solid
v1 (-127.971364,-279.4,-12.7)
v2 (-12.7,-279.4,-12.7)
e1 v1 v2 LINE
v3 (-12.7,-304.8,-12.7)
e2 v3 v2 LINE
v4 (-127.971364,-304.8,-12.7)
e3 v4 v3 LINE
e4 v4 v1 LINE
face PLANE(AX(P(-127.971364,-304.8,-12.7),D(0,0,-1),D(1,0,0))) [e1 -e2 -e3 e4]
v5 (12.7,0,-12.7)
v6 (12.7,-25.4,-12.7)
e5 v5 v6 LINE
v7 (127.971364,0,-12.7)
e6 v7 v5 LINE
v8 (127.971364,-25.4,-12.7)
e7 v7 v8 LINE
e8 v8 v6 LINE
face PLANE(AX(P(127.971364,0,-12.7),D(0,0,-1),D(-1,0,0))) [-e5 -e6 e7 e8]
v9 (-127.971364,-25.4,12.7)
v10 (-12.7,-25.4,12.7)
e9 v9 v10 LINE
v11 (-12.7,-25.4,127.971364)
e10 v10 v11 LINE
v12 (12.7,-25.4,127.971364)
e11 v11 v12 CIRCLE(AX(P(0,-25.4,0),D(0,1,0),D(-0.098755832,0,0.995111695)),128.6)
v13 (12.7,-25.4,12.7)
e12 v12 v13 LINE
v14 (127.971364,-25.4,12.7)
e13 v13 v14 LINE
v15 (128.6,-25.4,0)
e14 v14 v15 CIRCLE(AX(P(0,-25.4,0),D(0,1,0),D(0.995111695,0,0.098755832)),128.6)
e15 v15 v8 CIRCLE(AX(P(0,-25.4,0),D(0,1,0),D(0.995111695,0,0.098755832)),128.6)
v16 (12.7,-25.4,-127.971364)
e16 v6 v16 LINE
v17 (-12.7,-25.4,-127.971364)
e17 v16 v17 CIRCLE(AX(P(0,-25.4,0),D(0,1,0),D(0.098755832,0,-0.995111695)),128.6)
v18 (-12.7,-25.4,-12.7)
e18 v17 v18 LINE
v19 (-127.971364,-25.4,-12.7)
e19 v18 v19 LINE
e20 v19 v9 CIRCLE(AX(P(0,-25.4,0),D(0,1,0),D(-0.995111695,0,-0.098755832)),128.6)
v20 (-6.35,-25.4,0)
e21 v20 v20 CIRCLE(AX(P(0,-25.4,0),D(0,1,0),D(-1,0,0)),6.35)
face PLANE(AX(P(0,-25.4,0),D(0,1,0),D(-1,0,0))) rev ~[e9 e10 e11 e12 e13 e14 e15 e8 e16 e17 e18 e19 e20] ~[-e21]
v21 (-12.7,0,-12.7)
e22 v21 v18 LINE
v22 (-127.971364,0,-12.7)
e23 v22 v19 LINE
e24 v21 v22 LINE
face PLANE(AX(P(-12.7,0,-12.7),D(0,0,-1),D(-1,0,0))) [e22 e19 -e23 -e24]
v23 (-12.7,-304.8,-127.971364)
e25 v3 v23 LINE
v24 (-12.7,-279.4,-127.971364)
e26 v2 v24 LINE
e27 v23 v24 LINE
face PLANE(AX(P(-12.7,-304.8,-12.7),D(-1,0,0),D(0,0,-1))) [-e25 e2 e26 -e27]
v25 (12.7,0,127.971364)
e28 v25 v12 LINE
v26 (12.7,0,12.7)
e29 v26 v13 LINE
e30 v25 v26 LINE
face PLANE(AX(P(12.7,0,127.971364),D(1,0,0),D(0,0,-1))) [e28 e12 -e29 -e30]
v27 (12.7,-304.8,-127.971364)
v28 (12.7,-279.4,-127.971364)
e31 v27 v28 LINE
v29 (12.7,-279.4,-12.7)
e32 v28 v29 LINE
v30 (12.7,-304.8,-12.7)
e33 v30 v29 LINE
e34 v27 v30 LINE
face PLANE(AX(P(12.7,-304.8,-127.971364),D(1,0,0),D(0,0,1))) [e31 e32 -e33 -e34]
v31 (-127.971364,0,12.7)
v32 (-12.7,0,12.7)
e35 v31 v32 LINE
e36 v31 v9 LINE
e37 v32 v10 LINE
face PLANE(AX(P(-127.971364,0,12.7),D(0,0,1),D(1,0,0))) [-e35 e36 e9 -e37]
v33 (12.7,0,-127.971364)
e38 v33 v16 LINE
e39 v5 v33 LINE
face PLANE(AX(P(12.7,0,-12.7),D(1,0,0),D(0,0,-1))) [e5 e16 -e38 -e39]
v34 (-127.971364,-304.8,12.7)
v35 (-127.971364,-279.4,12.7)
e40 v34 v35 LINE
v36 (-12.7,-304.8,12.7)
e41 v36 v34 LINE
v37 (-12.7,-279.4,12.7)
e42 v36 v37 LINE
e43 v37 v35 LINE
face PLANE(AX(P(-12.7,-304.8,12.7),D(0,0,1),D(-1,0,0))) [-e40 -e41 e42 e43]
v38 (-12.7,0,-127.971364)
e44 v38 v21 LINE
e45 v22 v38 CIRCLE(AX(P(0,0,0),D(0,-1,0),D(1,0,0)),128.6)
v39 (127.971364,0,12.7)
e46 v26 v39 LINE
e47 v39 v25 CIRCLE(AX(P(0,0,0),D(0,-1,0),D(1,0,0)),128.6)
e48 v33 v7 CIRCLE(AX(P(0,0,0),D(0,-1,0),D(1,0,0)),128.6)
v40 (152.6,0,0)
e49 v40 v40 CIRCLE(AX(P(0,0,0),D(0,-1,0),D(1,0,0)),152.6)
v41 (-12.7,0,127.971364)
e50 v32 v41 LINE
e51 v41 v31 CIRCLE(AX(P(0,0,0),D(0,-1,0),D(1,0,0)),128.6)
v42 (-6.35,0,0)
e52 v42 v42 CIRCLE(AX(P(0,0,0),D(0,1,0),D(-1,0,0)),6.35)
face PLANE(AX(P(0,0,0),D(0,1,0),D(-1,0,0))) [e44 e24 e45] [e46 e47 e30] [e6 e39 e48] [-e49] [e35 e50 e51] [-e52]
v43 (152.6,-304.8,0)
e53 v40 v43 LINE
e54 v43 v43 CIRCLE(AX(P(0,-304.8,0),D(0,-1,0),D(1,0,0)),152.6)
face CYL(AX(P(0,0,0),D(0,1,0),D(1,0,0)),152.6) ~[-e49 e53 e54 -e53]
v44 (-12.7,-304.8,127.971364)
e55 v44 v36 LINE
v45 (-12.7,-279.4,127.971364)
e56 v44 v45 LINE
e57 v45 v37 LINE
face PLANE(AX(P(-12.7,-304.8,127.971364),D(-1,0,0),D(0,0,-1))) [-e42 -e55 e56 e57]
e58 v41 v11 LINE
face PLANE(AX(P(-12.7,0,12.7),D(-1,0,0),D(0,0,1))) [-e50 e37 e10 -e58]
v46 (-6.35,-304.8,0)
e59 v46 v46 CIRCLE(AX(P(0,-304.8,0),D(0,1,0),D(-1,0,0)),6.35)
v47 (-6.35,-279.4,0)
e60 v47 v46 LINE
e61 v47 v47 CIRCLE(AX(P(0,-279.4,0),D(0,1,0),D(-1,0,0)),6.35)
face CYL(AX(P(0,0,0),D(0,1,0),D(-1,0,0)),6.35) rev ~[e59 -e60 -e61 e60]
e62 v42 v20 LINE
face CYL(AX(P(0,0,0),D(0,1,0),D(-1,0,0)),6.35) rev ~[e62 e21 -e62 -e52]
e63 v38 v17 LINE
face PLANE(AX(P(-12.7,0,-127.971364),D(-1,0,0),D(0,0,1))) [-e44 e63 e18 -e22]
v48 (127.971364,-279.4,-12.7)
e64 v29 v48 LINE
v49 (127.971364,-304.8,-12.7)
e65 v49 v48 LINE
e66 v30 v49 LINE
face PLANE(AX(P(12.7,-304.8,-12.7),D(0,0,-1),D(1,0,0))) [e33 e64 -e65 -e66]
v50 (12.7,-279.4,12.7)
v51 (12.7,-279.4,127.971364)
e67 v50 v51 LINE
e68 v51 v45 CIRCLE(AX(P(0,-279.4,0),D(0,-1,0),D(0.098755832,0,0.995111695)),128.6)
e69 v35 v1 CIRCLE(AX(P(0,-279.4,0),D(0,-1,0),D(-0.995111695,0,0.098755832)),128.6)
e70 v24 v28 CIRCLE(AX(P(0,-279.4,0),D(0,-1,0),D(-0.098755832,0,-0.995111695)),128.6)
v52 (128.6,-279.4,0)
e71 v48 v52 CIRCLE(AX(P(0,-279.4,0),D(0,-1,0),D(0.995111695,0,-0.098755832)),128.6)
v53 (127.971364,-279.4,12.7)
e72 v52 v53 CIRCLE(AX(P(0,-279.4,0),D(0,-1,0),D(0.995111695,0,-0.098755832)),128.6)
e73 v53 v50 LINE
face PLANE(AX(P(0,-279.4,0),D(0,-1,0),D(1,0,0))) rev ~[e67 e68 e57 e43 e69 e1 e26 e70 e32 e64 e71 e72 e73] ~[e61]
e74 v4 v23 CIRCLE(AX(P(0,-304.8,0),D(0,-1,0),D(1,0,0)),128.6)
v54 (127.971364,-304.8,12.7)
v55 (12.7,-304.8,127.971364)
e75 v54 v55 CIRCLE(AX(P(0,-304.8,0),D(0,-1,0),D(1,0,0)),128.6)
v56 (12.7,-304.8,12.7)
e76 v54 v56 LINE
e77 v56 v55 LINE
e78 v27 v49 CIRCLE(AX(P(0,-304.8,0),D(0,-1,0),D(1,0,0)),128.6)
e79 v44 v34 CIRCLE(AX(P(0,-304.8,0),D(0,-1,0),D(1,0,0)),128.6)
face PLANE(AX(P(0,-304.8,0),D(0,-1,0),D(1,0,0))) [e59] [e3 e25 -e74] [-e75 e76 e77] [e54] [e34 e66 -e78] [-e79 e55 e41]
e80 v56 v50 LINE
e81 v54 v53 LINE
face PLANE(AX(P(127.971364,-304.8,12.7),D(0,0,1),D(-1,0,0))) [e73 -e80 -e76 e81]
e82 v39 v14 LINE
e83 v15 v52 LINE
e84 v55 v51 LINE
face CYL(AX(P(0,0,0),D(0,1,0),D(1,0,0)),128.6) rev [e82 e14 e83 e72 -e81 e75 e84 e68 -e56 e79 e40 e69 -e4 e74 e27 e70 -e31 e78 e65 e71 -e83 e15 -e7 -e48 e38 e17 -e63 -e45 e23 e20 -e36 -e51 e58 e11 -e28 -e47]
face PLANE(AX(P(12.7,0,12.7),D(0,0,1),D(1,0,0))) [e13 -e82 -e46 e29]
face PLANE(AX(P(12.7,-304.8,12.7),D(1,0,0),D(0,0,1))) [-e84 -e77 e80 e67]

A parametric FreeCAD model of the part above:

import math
import FreeCAD as App
import Part
import Sketcher

V = App.Vector
Q = App.Units.Quantity

doc = App.newDocument("Part")
body = doc.addObject("PartDesign::Body", "Body")

# Sketch on XZ plane
sketch1 = body.newObject("Sketcher::SketchObject", "Sketch")
sketch1.AttachmentSupport = (doc.getObject("XZ_Plane"), [""])
sketch1.MapMode = "FlatFace"
sketch1.addGeometry([
    Part.Circle(V(0, 0, 0), V(0, 0, 1), 152.6),
    Part.Circle(V(0, 0, 0), V(0, 0, 1), 128.6),
], False)
sketch1.addConstraint([
    Sketcher.Constraint("Coincident", 0, 3, -1, 1),
    Sketcher.Constraint("Coincident", 1, 3, -1, 1),
    Sketcher.Constraint("Diameter", 0, Q("305.2 mm")),
    Sketcher.Constraint("Diameter", 1, Q("257.2 mm")),
])
pad1 = body.newObject("PartDesign::Pad", "Pad")
pad1.Profile = sketch1
pad1.Length = 304.8

# Sketch on XZ plane
sketch2 = body.newObject("Sketcher::SketchObject", "Sketch001")
sketch2.AttachmentSupport = (doc.getObject("XZ_Plane"), [""])
sketch2.MapMode = "FlatFace"
sketch2.AttachmentOffset = App.Placement(V(0, 0, 304.8), App.Rotation())
sketch2.addGeometry([
    Part.ArcOfCircle(Part.Circle(V(0, 0, 0), V(0, 0, 1), 128.6), math.radians(-95.66753), math.radians(-84.33247)),  # 0
    Part.LineSegment(V(12.7, -127.971364, 0), V(12.7, -12.7, 0)),  # 1
    Part.LineSegment(V(12.7, -12.7, 0), V(127.971364, -12.7, 0)),  # 2
    Part.ArcOfCircle(Part.Circle(V(0, 0, 0), V(0, 0, 1), 128.6), math.radians(-5.66753), math.radians(5.66753)),  # 3
    Part.LineSegment(V(127.971364, 12.7, 0), V(12.7, 12.7, 0)),  # 4
    Part.LineSegment(V(12.7, 12.7, 0), V(12.7, 127.971364, 0)),  # 5
    Part.ArcOfCircle(Part.Circle(V(0, 0, 0), V(0, 0, 1), 128.6), math.radians(84.33247), math.radians(95.66753)),  # 6
    Part.LineSegment(V(-12.7, 127.971364, 0), V(-12.7, 12.7, 0)),  # 7
    Part.LineSegment(V(-12.7, 12.7, 0), V(-127.971364, 12.7, 0)),  # 8
    Part.ArcOfCircle(Part.Circle(V(0, 0, 0), V(0, 0, 1), 128.6), math.radians(174.33247), math.radians(185.66753)),  # 9
    Part.LineSegment(V(-127.971364, -12.7, 0), V(-12.7, -12.7, 0)),  # 10
    Part.LineSegment(V(-12.7, -12.7, 0), V(-12.7, -127.971364, 0)),  # 11
], False)
sketch2.addConstraint([
    Sketcher.Constraint("Coincident", 0, 2, 1, 1),
    Sketcher.Constraint("Coincident", 1, 2, 2, 1),
    Sketcher.Constraint("Coincident", 2, 2, 3, 1),
    Sketcher.Constraint("Coincident", 3, 2, 4, 1),
    Sketcher.Constraint("Coincident", 4, 2, 5, 1),
    Sketcher.Constraint("Coincident", 5, 2, 6, 1),
    Sketcher.Constraint("Coincident", 6, 2, 7, 1),
    Sketcher.Constraint("Coincident", 7, 2, 8, 1),
    Sketcher.Constraint("Coincident", 8, 2, 9, 1),
    Sketcher.Constraint("Coincident", 9, 2, 10, 1),
    Sketcher.Constraint("Coincident", 10, 2, 11, 1),
    Sketcher.Constraint("Coincident", 11, 2, 0, 1),
    Sketcher.Constraint("Vertical", 1),
    Sketcher.Constraint("Horizontal", 2),
    Sketcher.Constraint("Horizontal", 4),
    Sketcher.Constraint("Vertical", 5),
    Sketcher.Constraint("Vertical", 7),
    Sketcher.Constraint("Horizontal", 8),
    Sketcher.Constraint("Horizontal", 10),
    Sketcher.Constraint("Vertical", 11),
    Sketcher.Constraint("Coincident", 0, 3, -1, 1),
    Sketcher.Constraint("Coincident", 3, 3, -1, 1),
    Sketcher.Constraint("Coincident", 6, 3, -1, 1),
    Sketcher.Constraint("Coincident", 9, 3, -1, 1),
    Sketcher.Constraint("Equal", 0, 3),
    Sketcher.Constraint("Equal", 3, 6),
    Sketcher.Constraint("Equal", 6, 9),
    Sketcher.Constraint("Symmetric", 1, 2, 7, 2, -1, 1),
    Sketcher.Constraint("Symmetric", 4, 2, 10, 2, -1, 1),
    Sketcher.Constraint("Symmetric", 4, 2, 7, 2, -2),
    Sketcher.Constraint("Equal", 10, 1),
    Sketcher.Constraint("Radius", 0, Q("128.6 mm")),
    Sketcher.Constraint("DistanceX", -1, 1, 1, 2, Q("12.7 mm")),
])
pad2 = body.newObject("PartDesign::Pad", "Pad001")
pad2.Profile = sketch2
pad2.Length = 25.4
pad2.Reversed = True

# Sketch on XZ plane
sketch3 = body.newObject("Sketcher::SketchObject", "Sketch002")
sketch3.AttachmentSupport = (doc.getObject("XZ_Plane"), [""])
sketch3.MapMode = "FlatFace"
sketch3.addGeometry([
    Part.LineSegment(V(12.7, 127.971364, 0), V(12.7, 12.7, 0)),  # 0
    Part.LineSegment(V(12.7, 12.7, 0), V(127.971364, 12.7, 0)),  # 1
    Part.ArcOfCircle(Part.Circle(V(0, 0, 0), V(0, 0, 1), 128.6), math.radians(-5.66753), math.radians(5.66753)),  # 2
    Part.LineSegment(V(127.971364, -12.7, 0), V(12.7, -12.7, 0)),  # 3
    Part.LineSegment(V(12.7, -12.7, 0), V(12.7, -127.971364, 0)),  # 4
    Part.ArcOfCircle(Part.Circle(V(0, 0, 0), V(0, 0, 1), 128.6), math.radians(-95.66753), math.radians(-84.33247)),  # 5
    Part.LineSegment(V(-12.7, -127.971364, 0), V(-12.7, -12.7, 0)),  # 6
    Part.LineSegment(V(-12.7, -12.7, 0), V(-127.971364, -12.7, 0)),  # 7
    Part.ArcOfCircle(Part.Circle(V(0, 0, 0), V(0, 0, 1), 128.6), math.radians(174.33247), math.radians(185.66753)),  # 8
    Part.LineSegment(V(-127.971364, 12.7, 0), V(-12.7, 12.7, 0)),  # 9
    Part.LineSegment(V(-12.7, 12.7, 0), V(-12.7, 127.971364, 0)),  # 10
    Part.ArcOfCircle(Part.Circle(V(0, 0, 0), V(0, 0, 1), 128.6), math.radians(84.33247), math.radians(95.66753)),  # 11
], False)
sketch3.addConstraint([
    Sketcher.Constraint("Coincident", 0, 2, 1, 1),
    Sketcher.Constraint("Coincident", 1, 2, 2, 2),
    Sketcher.Constraint("Coincident", 2, 1, 3, 1),
    Sketcher.Constraint("Coincident", 3, 2, 4, 1),
    Sketcher.Constraint("Coincident", 4, 2, 5, 2),
    Sketcher.Constraint("Coincident", 5, 1, 6, 1),
    Sketcher.Constraint("Coincident", 6, 2, 7, 1),
    Sketcher.Constraint("Coincident", 7, 2, 8, 2),
    Sketcher.Constraint("Coincident", 8, 1, 9, 1),
    Sketcher.Constraint("Coincident", 9, 2, 10, 1),
    Sketcher.Constraint("Coincident", 10, 2, 11, 2),
    Sketcher.Constraint("Coincident", 11, 1, 0, 1),
    Sketcher.Constraint("Vertical", 0),
    Sketcher.Constraint("Horizontal", 1),
    Sketcher.Constraint("Horizontal", 3),
    Sketcher.Constraint("Vertical", 4),
    Sketcher.Constraint("Vertical", 6),
    Sketcher.Constraint("Horizontal", 7),
    Sketcher.Constraint("Horizontal", 9),
    Sketcher.Constraint("Vertical", 10),
    Sketcher.Constraint("Coincident", 2, 3, -1, 1),
    Sketcher.Constraint("Coincident", 5, 3, -1, 1),
    Sketcher.Constraint("Coincident", 8, 3, -1, 1),
    Sketcher.Constraint("Coincident", 11, 3, -1, 1),
    Sketcher.Constraint("Equal", 2, 5),
    Sketcher.Constraint("Equal", 5, 8),
    Sketcher.Constraint("Equal", 8, 11),
    Sketcher.Constraint("Symmetric", 0, 2, 6, 2, -1, 1),
    Sketcher.Constraint("Symmetric", 3, 2, 9, 2, -1, 1),
    Sketcher.Constraint("Symmetric", 3, 2, 6, 2, -2),
    Sketcher.Constraint("Equal", 9, 0),
    Sketcher.Constraint("Radius", 2, Q("128.6 mm")),
    Sketcher.Constraint("DistanceX", -1, 1, 0, 2, Q("12.7 mm")),
])
pad3 = body.newObject("PartDesign::Pad", "Pad002")
pad3.Profile = sketch3
pad3.Length = 25.4

# Sketch on XZ plane
sketch4 = body.newObject("Sketcher::SketchObject", "Sketch003")
sketch4.AttachmentSupport = (doc.getObject("XZ_Plane"), [""])
sketch4.MapMode = "FlatFace"
sketch4.addGeometry(Part.Circle(V(0, 0, 0), V(0, 0, 1), 6.35), False)
sketch4.addConstraint([
    Sketcher.Constraint("Coincident", 0, 3, -1, 1),
    Sketcher.Constraint("Diameter", 0, Q("12.7 mm")),
])
pocket1 = body.newObject("PartDesign::Pocket", "Pocket")
pocket1.Profile = sketch4
pocket1.Length = 382
pocket1.Reversed = True

doc.recompute()
